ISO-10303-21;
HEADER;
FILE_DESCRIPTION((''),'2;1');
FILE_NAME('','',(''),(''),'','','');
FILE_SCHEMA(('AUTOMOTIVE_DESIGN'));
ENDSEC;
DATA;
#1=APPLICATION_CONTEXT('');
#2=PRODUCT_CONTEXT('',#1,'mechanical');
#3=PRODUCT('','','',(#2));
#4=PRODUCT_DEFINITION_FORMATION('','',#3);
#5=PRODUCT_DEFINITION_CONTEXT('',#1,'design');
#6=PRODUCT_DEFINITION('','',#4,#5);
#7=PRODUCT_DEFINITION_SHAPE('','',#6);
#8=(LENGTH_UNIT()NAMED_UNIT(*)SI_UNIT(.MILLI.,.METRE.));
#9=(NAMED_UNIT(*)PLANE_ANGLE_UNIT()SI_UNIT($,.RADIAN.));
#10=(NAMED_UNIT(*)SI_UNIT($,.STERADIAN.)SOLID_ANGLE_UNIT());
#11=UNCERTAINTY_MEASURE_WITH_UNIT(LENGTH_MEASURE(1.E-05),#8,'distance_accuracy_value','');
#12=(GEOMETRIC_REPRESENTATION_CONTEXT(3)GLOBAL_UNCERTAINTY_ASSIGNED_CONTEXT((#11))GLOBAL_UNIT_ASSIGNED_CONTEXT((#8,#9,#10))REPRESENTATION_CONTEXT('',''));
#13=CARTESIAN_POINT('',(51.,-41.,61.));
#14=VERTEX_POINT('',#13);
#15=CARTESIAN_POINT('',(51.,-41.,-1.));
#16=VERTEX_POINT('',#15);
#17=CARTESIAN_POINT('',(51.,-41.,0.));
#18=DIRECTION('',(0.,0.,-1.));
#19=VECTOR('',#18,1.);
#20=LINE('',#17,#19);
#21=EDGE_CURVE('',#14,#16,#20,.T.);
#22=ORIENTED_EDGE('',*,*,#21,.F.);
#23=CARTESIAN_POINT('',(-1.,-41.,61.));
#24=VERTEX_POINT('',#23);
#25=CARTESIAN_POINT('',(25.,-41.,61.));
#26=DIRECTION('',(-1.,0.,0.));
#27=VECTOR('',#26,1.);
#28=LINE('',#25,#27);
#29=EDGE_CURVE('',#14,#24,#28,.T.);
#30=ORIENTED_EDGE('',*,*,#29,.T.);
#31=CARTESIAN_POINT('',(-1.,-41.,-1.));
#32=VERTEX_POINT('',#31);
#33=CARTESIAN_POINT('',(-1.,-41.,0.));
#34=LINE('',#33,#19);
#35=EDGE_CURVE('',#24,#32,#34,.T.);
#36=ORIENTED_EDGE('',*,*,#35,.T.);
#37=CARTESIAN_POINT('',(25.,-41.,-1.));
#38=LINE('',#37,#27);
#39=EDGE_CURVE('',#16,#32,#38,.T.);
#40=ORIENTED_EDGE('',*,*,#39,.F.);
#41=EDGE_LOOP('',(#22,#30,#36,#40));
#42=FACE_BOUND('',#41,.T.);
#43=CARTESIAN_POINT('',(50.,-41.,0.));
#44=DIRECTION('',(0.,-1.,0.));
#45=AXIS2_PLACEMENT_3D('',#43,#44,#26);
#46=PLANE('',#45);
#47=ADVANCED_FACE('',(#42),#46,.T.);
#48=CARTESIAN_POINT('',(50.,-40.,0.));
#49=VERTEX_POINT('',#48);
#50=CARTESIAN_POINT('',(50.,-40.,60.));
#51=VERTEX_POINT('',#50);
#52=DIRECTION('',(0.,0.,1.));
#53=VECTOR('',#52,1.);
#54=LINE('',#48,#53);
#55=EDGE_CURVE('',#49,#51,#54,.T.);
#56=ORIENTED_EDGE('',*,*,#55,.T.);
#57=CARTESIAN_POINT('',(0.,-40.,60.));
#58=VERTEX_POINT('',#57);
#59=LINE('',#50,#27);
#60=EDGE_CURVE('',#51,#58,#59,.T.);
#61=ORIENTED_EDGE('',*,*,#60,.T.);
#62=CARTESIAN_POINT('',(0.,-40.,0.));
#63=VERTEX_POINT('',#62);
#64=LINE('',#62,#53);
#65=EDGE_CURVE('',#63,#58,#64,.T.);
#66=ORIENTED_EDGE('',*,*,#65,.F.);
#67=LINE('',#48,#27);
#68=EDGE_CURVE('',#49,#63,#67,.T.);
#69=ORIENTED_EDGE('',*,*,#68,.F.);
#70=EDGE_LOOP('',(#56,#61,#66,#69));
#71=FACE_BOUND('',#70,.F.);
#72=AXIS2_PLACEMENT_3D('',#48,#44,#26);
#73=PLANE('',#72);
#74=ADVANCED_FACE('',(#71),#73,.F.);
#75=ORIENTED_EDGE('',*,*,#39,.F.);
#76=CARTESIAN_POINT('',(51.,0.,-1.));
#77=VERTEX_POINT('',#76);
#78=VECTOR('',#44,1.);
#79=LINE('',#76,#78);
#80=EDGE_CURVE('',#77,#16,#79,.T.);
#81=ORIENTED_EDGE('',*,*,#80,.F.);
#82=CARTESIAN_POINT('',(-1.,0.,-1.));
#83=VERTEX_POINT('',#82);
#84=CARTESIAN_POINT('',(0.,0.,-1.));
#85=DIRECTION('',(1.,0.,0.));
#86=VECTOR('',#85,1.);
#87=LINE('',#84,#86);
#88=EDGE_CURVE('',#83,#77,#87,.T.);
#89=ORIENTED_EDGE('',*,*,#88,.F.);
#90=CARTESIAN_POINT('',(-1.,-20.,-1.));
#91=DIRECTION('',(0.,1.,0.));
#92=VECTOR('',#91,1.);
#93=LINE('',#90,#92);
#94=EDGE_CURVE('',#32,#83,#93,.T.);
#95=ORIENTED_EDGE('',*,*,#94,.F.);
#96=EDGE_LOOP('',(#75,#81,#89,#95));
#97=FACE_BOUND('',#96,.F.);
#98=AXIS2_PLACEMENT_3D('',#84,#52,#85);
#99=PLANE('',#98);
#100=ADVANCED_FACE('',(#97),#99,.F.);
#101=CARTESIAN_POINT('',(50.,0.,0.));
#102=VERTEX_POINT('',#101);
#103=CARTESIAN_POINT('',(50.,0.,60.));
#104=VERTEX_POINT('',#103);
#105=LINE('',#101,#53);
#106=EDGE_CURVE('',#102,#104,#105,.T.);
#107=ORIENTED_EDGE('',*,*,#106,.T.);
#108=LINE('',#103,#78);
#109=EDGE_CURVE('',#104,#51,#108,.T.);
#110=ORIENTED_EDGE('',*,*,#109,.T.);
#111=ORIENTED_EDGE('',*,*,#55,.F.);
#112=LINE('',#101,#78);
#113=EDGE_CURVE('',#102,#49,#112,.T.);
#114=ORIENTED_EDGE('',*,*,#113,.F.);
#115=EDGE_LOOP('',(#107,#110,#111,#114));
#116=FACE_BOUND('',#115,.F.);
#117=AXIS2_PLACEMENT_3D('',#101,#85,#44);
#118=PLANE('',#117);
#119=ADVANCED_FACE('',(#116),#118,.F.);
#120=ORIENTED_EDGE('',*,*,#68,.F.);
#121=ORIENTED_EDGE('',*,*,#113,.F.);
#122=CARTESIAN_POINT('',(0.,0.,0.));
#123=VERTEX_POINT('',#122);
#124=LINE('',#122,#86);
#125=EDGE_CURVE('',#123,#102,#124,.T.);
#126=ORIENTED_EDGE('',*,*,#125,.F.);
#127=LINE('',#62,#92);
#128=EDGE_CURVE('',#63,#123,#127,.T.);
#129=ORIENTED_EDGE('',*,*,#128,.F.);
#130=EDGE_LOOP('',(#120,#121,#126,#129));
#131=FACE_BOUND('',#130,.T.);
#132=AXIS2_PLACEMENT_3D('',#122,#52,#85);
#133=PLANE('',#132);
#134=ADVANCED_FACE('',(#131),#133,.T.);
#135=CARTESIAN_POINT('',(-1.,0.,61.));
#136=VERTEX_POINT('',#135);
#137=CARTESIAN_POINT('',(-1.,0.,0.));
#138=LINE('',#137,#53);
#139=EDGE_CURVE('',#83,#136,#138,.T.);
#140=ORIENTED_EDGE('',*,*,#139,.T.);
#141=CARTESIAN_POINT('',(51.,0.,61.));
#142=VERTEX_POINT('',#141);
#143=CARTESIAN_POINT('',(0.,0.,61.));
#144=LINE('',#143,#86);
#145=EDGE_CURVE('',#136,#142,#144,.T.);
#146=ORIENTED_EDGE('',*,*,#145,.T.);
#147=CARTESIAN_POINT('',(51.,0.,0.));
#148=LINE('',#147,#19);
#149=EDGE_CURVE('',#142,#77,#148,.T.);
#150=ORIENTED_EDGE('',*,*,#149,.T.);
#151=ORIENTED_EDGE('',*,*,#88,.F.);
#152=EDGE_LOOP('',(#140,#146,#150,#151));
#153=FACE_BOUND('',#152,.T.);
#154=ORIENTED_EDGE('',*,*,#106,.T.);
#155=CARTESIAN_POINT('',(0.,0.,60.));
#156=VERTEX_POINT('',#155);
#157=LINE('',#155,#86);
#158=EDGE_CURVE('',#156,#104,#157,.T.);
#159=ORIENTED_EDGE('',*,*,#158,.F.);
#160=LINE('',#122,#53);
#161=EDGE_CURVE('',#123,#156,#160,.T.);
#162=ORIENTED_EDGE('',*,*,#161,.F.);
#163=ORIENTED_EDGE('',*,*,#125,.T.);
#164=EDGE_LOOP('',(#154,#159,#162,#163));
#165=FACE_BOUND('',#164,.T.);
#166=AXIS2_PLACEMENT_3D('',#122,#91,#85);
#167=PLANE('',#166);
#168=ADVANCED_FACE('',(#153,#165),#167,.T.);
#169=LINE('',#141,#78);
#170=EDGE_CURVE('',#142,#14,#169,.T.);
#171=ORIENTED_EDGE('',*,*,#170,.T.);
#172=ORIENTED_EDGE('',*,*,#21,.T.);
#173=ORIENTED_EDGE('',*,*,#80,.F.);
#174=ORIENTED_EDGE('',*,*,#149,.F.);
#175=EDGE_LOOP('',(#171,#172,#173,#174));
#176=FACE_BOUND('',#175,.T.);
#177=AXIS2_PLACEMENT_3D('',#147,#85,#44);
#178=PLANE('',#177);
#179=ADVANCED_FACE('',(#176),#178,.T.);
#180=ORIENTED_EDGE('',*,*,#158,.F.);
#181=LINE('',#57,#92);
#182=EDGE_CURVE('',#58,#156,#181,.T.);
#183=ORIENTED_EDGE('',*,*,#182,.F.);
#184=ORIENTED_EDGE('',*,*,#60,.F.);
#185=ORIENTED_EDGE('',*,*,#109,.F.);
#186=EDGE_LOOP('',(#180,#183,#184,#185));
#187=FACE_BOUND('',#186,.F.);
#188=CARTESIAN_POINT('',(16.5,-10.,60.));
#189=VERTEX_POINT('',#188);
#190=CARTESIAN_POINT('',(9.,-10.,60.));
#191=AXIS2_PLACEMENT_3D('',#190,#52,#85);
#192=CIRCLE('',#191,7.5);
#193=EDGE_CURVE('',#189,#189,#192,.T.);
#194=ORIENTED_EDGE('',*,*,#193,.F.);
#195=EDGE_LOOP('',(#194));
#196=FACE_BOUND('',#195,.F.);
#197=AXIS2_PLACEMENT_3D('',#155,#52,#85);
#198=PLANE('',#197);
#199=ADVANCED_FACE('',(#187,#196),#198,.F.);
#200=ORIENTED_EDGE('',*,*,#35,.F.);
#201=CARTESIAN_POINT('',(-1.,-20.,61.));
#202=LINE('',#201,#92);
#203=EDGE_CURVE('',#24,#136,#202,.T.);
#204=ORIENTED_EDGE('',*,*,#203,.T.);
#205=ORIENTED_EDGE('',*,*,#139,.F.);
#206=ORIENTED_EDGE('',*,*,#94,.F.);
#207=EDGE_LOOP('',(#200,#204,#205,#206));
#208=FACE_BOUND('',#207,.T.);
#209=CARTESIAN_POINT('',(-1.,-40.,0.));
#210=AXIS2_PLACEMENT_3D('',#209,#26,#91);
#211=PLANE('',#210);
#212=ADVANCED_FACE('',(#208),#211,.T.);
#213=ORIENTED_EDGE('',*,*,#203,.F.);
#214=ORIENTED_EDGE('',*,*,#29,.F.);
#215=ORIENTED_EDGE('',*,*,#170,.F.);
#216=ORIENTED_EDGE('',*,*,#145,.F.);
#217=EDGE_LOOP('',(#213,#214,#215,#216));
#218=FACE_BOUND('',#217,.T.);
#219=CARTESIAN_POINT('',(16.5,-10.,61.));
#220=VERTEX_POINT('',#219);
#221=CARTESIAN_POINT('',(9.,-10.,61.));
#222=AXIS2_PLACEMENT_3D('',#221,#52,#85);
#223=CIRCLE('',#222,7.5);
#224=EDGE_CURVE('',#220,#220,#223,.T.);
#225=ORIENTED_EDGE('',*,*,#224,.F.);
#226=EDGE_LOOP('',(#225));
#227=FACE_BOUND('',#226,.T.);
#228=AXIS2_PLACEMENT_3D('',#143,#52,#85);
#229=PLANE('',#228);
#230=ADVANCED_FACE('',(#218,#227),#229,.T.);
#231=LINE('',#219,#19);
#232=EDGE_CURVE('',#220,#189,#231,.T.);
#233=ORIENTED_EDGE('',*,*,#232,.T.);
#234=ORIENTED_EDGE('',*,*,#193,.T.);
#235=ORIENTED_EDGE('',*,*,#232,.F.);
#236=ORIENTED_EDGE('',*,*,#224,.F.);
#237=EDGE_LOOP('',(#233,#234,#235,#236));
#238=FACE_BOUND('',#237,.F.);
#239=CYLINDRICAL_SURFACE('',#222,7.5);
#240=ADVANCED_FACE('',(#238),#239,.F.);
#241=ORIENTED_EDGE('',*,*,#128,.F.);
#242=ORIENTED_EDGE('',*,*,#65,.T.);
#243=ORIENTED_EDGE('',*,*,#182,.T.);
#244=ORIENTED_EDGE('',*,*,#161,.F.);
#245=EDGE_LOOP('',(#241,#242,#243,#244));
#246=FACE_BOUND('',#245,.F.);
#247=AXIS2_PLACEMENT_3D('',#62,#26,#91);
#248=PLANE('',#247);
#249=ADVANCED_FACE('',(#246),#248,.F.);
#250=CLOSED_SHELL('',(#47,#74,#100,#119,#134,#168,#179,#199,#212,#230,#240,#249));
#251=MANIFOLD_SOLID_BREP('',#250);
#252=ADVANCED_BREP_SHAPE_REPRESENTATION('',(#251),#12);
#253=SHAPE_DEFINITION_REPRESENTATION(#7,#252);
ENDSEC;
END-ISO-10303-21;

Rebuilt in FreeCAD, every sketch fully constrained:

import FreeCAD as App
import Part
import Sketcher
from FreeCAD import Vector
Q = App.Units.Quantity


def faces_at(feature, points):
    """Names of the faces that lie closest to the given points."""
    faces = feature.Shape.Faces
    near = lambda p: min(range(len(faces)), key=lambda i: faces[i].distToShape(Part.Vertex(*p))[0])
    return sorted({f"Face{near(p) + 1}" for p in points})


def add_polygon(sketch, points):
    """Adds a closed chain of lines whose ends are joined by coincident constraints."""
    first, n = sketch.GeometryCount, len(points)
    for a, b in zip(points, points[1:] + points[:1]):
        sketch.addGeometry(Part.LineSegment(App.Vector(*a, 0), App.Vector(*b, 0)), False)
    for i in range(n):
        sketch.addConstraint(Sketcher.Constraint("Coincident", first + i, 2, first + (i + 1) % n, 1))

doc = App.newDocument("Part")
body = doc.addObject("PartDesign::Body", "Body")

sketch1 = body.newObject("Sketcher::SketchObject", "Sketch")
sketch1.AttachmentSupport = (doc.getObject("XY_Plane"), [""])
sketch1.MapMode = "FlatFace"
add_polygon(sketch1, [(50, 0), (0, 0), (0, -40), (50, -40)])
sketch1.addConstraint(Sketcher.Constraint("Horizontal", 0))
sketch1.addConstraint(Sketcher.Constraint("Vertical", 1))
sketch1.addConstraint(Sketcher.Constraint("Horizontal", 2))
sketch1.addConstraint(Sketcher.Constraint("Vertical", 3))
sketch1.addConstraint(Sketcher.Constraint("Coincident", 0, 2, -1, 1))
sketch1.addConstraint(Sketcher.Constraint("DistanceX", 0, 2, 0, 1, Q("50 mm")))
sketch1.addConstraint(Sketcher.Constraint("DistanceY", 1, 2, 1, 1, Q("40 mm")))
pad1 = body.newObject("PartDesign::Pad", "Pad")
pad1.Profile = sketch1
pad1.Length = 60
doc.recompute()

thickness = body.newObject("PartDesign::Thickness", "Thickness")
thickness.Base = (pad1, faces_at(pad1, [(33.333, 0, 20)]))
thickness.Value = 1
thickness.Reversed = False
thickness.Join = "Intersection"

sketch2 = body.newObject("Sketcher::SketchObject", "Sketch001")
sketch2.AttachmentSupport = (doc.getObject("XY_Plane"), [""])
sketch2.MapMode = "FlatFace"
sketch2.AttachmentOffset = App.Placement(Vector(0, 0, 61), App.Rotation())
sketch2.addGeometry(Part.Circle(Vector(9, -10, 0), Vector(0, 0, 1), 7.5), False)
sketch2.addConstraint(Sketcher.Constraint("Diameter", 0, Q("15 mm")))
sketch2.addConstraint(Sketcher.Constraint("DistanceY", 0, 3, -1, 1, Q("10 mm")))
sketch2.addConstraint(Sketcher.Constraint("DistanceX", -1, 1, 0, 3, Q("9 mm")))
pocket1 = body.newObject("PartDesign::Pocket", "Pocket")
pocket1.Profile = sketch2
pocket1.Length = 60

doc.recompute()
